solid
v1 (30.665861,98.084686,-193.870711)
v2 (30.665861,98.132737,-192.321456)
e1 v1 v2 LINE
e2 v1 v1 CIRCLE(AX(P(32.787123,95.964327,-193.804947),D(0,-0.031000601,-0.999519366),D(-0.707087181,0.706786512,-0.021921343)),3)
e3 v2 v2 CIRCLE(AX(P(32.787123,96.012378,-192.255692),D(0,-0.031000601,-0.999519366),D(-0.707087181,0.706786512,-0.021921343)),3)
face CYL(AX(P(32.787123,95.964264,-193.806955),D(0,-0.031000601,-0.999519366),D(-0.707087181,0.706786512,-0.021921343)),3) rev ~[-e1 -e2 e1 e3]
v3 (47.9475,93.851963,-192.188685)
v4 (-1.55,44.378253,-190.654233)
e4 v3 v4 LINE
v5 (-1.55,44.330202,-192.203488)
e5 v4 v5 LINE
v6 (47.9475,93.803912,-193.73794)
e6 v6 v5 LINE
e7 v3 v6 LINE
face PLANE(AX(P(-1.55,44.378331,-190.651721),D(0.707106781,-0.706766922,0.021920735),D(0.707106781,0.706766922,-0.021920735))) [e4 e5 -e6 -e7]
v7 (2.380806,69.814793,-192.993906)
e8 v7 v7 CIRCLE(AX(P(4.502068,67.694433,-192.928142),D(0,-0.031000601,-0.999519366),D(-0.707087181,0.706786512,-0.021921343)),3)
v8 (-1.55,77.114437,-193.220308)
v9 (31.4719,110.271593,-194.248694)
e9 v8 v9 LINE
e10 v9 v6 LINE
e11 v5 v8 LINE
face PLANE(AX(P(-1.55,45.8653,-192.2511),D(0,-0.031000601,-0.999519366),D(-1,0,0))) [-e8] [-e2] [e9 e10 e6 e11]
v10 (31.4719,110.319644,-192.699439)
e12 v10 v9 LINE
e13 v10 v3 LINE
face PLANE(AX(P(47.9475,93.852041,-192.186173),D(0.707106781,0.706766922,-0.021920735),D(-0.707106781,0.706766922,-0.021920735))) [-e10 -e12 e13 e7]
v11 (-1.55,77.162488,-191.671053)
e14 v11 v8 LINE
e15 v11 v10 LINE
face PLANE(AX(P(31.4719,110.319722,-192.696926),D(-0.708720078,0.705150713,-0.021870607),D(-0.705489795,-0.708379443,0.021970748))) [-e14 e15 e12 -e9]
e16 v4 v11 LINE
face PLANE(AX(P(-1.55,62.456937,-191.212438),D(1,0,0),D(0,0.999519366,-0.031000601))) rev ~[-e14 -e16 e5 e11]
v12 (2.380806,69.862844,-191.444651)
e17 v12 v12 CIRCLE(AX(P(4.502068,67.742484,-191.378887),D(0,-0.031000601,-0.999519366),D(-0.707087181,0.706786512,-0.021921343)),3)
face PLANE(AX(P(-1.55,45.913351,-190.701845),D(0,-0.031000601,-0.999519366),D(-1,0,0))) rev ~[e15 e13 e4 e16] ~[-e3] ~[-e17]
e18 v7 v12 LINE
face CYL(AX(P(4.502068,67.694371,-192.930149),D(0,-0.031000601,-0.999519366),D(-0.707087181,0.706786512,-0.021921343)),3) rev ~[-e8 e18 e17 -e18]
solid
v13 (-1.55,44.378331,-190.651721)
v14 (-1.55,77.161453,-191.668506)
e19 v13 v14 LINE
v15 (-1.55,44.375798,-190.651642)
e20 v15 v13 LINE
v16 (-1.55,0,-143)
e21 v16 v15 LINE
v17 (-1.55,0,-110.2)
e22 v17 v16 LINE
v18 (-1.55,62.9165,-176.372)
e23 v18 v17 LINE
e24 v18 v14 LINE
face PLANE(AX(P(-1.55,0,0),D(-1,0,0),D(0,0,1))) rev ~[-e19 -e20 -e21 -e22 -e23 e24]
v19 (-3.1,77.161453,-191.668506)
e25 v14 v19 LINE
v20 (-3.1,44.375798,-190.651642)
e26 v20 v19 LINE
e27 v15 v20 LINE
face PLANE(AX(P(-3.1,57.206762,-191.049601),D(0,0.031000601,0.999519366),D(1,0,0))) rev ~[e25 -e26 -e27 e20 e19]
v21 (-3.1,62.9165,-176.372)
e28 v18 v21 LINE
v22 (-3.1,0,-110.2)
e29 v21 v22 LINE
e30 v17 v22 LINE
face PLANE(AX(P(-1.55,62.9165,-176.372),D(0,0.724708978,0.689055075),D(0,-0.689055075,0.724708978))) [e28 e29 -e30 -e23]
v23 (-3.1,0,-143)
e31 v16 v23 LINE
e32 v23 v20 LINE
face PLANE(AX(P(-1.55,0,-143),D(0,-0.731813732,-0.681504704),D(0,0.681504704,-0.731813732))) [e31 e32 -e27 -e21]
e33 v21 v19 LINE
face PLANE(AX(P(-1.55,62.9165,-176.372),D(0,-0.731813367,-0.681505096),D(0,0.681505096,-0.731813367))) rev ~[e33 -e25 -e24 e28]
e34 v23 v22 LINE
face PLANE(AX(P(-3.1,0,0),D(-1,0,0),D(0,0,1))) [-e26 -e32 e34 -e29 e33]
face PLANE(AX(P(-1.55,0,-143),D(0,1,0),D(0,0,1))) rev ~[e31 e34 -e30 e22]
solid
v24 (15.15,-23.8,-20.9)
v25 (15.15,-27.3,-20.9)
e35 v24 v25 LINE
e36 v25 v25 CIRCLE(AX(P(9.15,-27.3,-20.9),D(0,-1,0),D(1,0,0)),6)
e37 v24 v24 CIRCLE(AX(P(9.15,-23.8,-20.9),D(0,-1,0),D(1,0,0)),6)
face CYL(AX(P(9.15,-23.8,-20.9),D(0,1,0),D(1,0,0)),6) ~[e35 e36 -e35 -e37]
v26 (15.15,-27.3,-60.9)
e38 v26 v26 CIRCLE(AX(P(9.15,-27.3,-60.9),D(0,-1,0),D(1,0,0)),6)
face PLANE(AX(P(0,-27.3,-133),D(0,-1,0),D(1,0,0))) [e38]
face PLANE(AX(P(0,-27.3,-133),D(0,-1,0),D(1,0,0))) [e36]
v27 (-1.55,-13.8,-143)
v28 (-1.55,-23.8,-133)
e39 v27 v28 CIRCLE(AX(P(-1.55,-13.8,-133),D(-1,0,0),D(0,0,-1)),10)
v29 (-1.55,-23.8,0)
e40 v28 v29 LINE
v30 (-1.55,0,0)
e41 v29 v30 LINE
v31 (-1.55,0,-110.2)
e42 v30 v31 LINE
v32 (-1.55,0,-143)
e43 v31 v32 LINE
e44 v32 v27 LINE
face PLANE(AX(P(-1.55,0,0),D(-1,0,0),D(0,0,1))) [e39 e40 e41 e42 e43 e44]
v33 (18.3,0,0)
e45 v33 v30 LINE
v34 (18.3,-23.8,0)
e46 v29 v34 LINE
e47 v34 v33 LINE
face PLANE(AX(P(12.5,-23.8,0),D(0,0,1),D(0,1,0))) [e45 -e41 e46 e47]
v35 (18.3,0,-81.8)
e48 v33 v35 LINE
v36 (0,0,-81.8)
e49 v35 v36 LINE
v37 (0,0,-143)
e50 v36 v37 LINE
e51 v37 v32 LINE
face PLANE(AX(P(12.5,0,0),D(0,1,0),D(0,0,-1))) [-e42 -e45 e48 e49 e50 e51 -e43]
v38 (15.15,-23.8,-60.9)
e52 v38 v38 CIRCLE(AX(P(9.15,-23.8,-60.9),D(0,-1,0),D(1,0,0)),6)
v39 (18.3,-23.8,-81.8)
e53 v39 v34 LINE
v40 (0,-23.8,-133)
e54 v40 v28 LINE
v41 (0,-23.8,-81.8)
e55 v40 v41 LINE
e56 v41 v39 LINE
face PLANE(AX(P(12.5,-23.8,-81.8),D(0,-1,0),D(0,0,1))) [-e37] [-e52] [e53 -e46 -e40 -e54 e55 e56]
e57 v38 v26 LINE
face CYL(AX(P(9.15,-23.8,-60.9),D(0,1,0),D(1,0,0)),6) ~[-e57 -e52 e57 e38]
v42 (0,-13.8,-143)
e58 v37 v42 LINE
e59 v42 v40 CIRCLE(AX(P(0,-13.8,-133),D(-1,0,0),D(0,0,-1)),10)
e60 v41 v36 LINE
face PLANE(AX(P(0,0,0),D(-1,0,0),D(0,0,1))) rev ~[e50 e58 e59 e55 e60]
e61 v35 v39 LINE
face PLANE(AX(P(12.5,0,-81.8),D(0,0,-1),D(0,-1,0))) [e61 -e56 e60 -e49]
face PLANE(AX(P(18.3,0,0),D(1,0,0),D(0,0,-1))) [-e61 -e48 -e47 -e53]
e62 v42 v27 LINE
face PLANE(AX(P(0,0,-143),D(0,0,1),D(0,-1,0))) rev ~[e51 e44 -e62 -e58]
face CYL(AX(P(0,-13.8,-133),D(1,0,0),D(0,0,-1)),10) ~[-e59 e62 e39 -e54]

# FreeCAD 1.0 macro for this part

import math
import FreeCAD as App
import Part
import Sketcher
from FreeCAD import Vector
Q = App.Units.Quantity


def add_polygon(sketch, points):
    """Adds a closed chain of lines whose ends are joined by coincident constraints."""
    first, n = sketch.GeometryCount, len(points)
    for a, b in zip(points, points[1:] + points[:1]):
        sketch.addGeometry(Part.LineSegment(App.Vector(*a, 0), App.Vector(*b, 0)), False)
    for i in range(n):
        sketch.addConstraint(Sketcher.Constraint("Coincident", first + i, 2, first + (i + 1) % n, 1))

doc = App.newDocument("Part")
params = doc.addObject("Spreadsheet::Sheet", "Params")
for row, (alias, value) in enumerate([
    ("sketch1_width", "23.8 mm"),
    ("sketch1_height", "81.8 mm"),
    ("pad1_length", "12.5 mm"),
    ("sketch2_radius", "10 mm"),
    ("sketch2_height", "143 mm"),
    ("sketch2_width", "23.8 mm"),
    ("pad2_length", "1.55 mm"),
    ("sketch3_height", "32.8 mm"),
    ("sketch3_length", "32.8 mm"),
    ("sketch3_length2", "67.3 mm"),
    ("pad3_length", "1.55 mm"),
    ("pad4_length", "1.55 mm"),
    ("sketch5_length", "70 mm"),
    ("sketch5_length2", "23.3 mm"),
    ("sketch5_height", "32.8 mm"),
    ("pocket1_length", "1.55 mm"),
    ("sketch6_diameter", "6 mm"),
    ("pocket2_length", "1.55 mm"),
    ("sketch7_width", "23.8 mm"),
    ("sketch7_height", "81.8 mm"),
    ("pad5_length", "5.8 mm"),
    ("sketch8_diameter", "12 mm"),
    ("pad6_length", "3.5 mm"),
], start=1):
    params.set(f"A{row}", alias)
    params.set(f"B{row}", "=" + value)
    params.setAlias(f"B{row}", alias)

body = doc.addObject("PartDesign::Body", "Body")
body.AllowCompound = True

sketch1 = body.newObject("Sketcher::SketchObject", "Sketch")
sketch1.AttachmentSupport = (doc.getObject("YZ_Plane"), [""])
sketch1.MapMode = "FlatFace"
add_polygon(sketch1, [(0, -81.8), (0, 0), (-23.8, 0), (-23.8, -81.8)])
sketch1.addConstraint([
    Sketcher.Constraint("Vertical", 0),
    Sketcher.Constraint("Horizontal", 1),
    Sketcher.Constraint("Vertical", 2),
    Sketcher.Constraint("Horizontal", 3),
    Sketcher.Constraint("Coincident", 0, 2, -1, 1),
    Sketcher.Constraint("DistanceX", 1, 2, 1, 1, 23.8),
    Sketcher.Constraint("DistanceY", 0, 1, 0, 2, 81.8),
])
sketch1.setExpression("Constraints[9]", "Params.sketch1_width")
sketch1.setExpression("Constraints[10]", "Params.sketch1_height")
pad1 = body.newObject("PartDesign::Pad", "Pad")
pad1.Profile = sketch1
pad1.setExpression("Length", "Params.pad1_length")

sketch2 = body.newObject("Sketcher::SketchObject", "Sketch001")
sketch2.AttachmentSupport = (doc.getObject("YZ_Plane"), [""])
sketch2.MapMode = "FlatFace"
sketch2.addGeometry([
    Part.LineSegment(Vector(-23.8, 0, 0), Vector(0, 0, 0)),
    Part.LineSegment(Vector(0, 0, 0), Vector(0, -143, 0)),
    Part.LineSegment(Vector(0, -143, 0), Vector(-13.8, -143, 0)),
    Part.ArcOfCircle(Part.Circle(Vector(-13.8, -133, 0), Vector(0, 0, 1), 10), math.radians(180), math.radians(270)),
    Part.LineSegment(Vector(-23.8, -133, 0), Vector(-23.8, 0, 0)),
], False)
sketch2.addConstraint([
    Sketcher.Constraint("Coincident", 0, 2, 1, 1),
    Sketcher.Constraint("Coincident", 1, 2, 2, 1),
    Sketcher.Constraint("Tangent", 2, 2, 3, 2),
    Sketcher.Constraint("Tangent", 3, 1, 4, 1),
    Sketcher.Constraint("Coincident", 4, 2, 0, 1),
    Sketcher.Constraint("Horizontal", 0),
    Sketcher.Constraint("Vertical", 1),
    Sketcher.Constraint("Horizontal", 2),
    Sketcher.Constraint("Vertical", 4),
    Sketcher.Constraint("Coincident", 0, 2, -1, 1),
    Sketcher.Constraint("Radius", 3, 10.0),
    Sketcher.Constraint("DistanceY", 1, 2, 1, 1, 143.0),
    Sketcher.Constraint("DistanceX", 0, 1, 0, 2, 23.8),
])
sketch2.setExpression("Constraints[10]", "Params.sketch2_radius")
sketch2.setExpression("Constraints[11]", "Params.sketch2_height")
sketch2.setExpression("Constraints[12]", "Params.sketch2_width")
pad2 = body.newObject("PartDesign::Pad", "Pad001")
pad2.Profile = sketch2
pad2.setExpression("Length", "Params.pad2_length")
pad2.Reversed = True

sketch3 = body.newObject("Sketcher::SketchObject", "Sketch002")
sketch3.AttachmentSupport = (doc.getObject("YZ_Plane"), [""])
sketch3.MapMode = "FlatFace"
sketch3.AttachmentOffset = App.Placement(Vector(0, 0, -1.55), App.Rotation())
add_polygon(sketch3, [(45.8653, -192.2511), (0, -143), (0, -110.2), (62.9165, -176.372), (78.6495, -193.2664)])
sketch3.addConstraint([
    Sketcher.Constraint("Vertical", 1),
    Sketcher.Constraint("PointOnObject", 0, 2, -2),
    Sketcher.Constraint("Parallel", 0, 3),
    Sketcher.Constraint("DistanceY", 1, 1, 1, 2, 32.8),
    Sketcher.Constraint("Distance", 4, 32.8),
    Sketcher.Constraint("DistanceY", 0, 2, -1, 1, 143.0),
    Sketcher.Constraint("Distance", 0, 67.3),
    Sketcher.Constraint("DistanceY", 2, 2, -1, 1, 176.372),
    Sketcher.Constraint("DistanceY", 4, 2, -1, 1, 192.251),
    Sketcher.Constraint("DistanceX", 2, 2, 3, 2, 15.733),
])
sketch3.setExpression("Constraints[8]", "Params.sketch3_height")
sketch3.setExpression("Constraints[9]", "Params.sketch3_length")
sketch3.setExpression("Constraints[11]", "Params.sketch3_length2")
pad3 = body.newObject("PartDesign::Pad", "Pad002")
pad3.Profile = sketch3
pad3.setExpression("Length", "Params.pad3_length")
pad3.Reversed = True

sketch4 = body.newObject("Sketcher::SketchObject", "Sketch003")
sketch4.Placement = App.Placement(Vector(-1.55, 45.8653, -192.2511), App.Rotation(Vector(-1, 0, 0), Vector(0, 0.999519366, -0.031000601), Vector(0, -0.031000601, -0.999519366), "ZXY"))
sketch4.addGeometry(Part.Circle(Vector(1.55, 11.2988, 0), Vector(0, 0, 1), 152.2645), False)
sketch4.addConstraint([
    Sketcher.Constraint("Diameter", 0, 304.529),
    Sketcher.Constraint("DistanceX", -1, 1, 0, 3, 1.55),
    Sketcher.Constraint("DistanceY", -1, 1, 0, 3, 11.2988),
])
pad4 = body.newObject("PartDesign::Pad", "Pad003")
pad4.Profile = sketch4
pad4.setExpression("Length", "Params.pad4_length")
pad4.Reversed = True

sketch5 = body.newObject("Sketcher::SketchObject", "Sketch004")
sketch5.Placement = App.Placement(Vector(-3.1, 57.2067, -191.0516), App.Rotation(Vector(1, 0, 0), Vector(0, 0.999519366, -0.031000601), Vector(0, 0.031000601, 0.999519366), "ZXY"))
sketch5.addGeometry(Part.Circle(Vector(-14.9256, -12.8346, 0), Vector(0, 0, 1), 218.7609), False)
add_polygon(sketch5, [(51.0475, 36.6629), (1.55, -12.8346), (1.55, 19.9654), (34.5719, 53.1385)])
sketch5.addConstraint([
    Sketcher.Constraint("Vertical", 2),
    Sketcher.Constraint("Perpendicular", 1, 4),
    Sketcher.Constraint("Horizontal", 0, 3, 1, 2),
    Sketcher.Constraint("Angle", 4, Q("-45 deg")),
    Sketcher.Constraint("Distance", 1, 70.0),
    Sketcher.Constraint("Distance", 4, 23.3),
    Sketcher.Constraint("DistanceY", 2, 1, 2, 2, 32.8),
    Sketcher.Constraint("Diameter", 0, 437.5218),
    Sketcher.Constraint("DistanceX", -1, 1, 1, 2, 1.55),
    Sketcher.Constraint("DistanceY", -1, 1, 4, 2, 36.663),
    Sketcher.Constraint("DistanceX", 0, 3, 4, 2, 65.973),
])
sketch5.setExpression("Constraints[8]", "Params.sketch5_length")
sketch5.setExpression("Constraints[9]", "Params.sketch5_length2")
sketch5.setExpression("Constraints[10]", "Params.sketch5_height")
pocket1 = body.newObject("PartDesign::Pocket", "Pocket")
pocket1.Profile = sketch5
pocket1.setExpression("Length", "Params.pocket1_length")

sketch6 = body.newObject("Sketcher::SketchObject", "Sketch005")
sketch6.Placement = App.Placement(Vector(-1.55, 44.3303, -192.2035), App.Rotation(Vector(-0.707087181, 0.706786512, -0.021921343), Vector(0.707126381, 0.706747331, -0.021920128), Vector(0, -0.031000601, -0.999519366), "ZXY"))
sketch6.addGeometry([
    Part.Circle(Vector(12.25, 20.808, 0), Vector(0, 0, 1), 3),
    Part.Circle(Vector(12.25, 60.808, 0), Vector(0, 0, 1), 3),
], False)
sketch6.addConstraint([
    Sketcher.Constraint("Equal", 0, 1),
    Sketcher.Constraint("Vertical", 0, 3, 1, 3),
    Sketcher.Constraint("Diameter", 0, 6.0),
    Sketcher.Constraint("DistanceY", 0, 3, 1, 3, 40.0),
    Sketcher.Constraint("DistanceX", -1, 1, 0, 3, 12.25),
    Sketcher.Constraint("DistanceY", -1, 1, 0, 3, 20.808),
])
sketch6.setExpression("Constraints[2]", "Params.sketch6_diameter")
pocket2 = body.newObject("PartDesign::Pocket", "Pocket001")
pocket2.Profile = sketch6
pocket2.setExpression("Length", "Params.pocket2_length")

sketch7 = body.newObject("Sketcher::SketchObject", "Sketch006")
sketch7.AttachmentSupport = (doc.getObject("YZ_Plane"), [""])
sketch7.MapMode = "FlatFace"
sketch7.AttachmentOffset = App.Placement(Vector(0, 0, 12.5), App.Rotation())
add_polygon(sketch7, [(0, 0), (-23.8, 0), (-23.8, -81.8), (0, -81.8)])
sketch7.addConstraint([
    Sketcher.Constraint("Horizontal", 0),
    Sketcher.Constraint("Vertical", 1),
    Sketcher.Constraint("Horizontal", 2),
    Sketcher.Constraint("Vertical", 3),
    Sketcher.Constraint("Coincident", 3, 2, -1, 1),
    Sketcher.Constraint("DistanceX", 0, 2, 0, 1, 23.8),
    Sketcher.Constraint("DistanceY", 1, 2, 1, 1, 81.8),
])
sketch7.setExpression("Constraints[9]", "Params.sketch7_width")
sketch7.setExpression("Constraints[10]", "Params.sketch7_height")
pad5 = body.newObject("PartDesign::Pad", "Pad004")
pad5.Profile = sketch7
pad5.setExpression("Length", "Params.pad5_length")

sketch8 = body.newObject("Sketcher::SketchObject", "Sketch007")
sketch8.AttachmentSupport = (doc.getObject("XZ_Plane"), [""])
sketch8.MapMode = "FlatFace"
sketch8.AttachmentOffset = App.Placement(Vector(0, 0, 23.8), App.Rotation())
sketch8.addGeometry([
    Part.Circle(Vector(9.15, -60.9, 0), Vector(0, 0, 1), 6),
    Part.Circle(Vector(9.15, -20.9, 0), Vector(0, 0, 1), 6),
], False)
sketch8.addConstraint([
    Sketcher.Constraint("Equal", 0, 1),
    Sketcher.Constraint("Vertical", 0, 3, 1, 3),
    Sketcher.Constraint("Diameter", 0, 12.0),
    Sketcher.Constraint("DistanceY", 0, 3, 1, 3, 40.0),
    Sketcher.Constraint("DistanceY", 0, 3, -1, 1, 60.9),
    Sketcher.Constraint("DistanceX", -1, 1, 0, 3, 9.15),
])
sketch8.setExpression("Constraints[2]", "Params.sketch8_diameter")
pad6 = body.newObject("PartDesign::Pad", "Pad005")
pad6.Profile = sketch8
pad6.setExpression("Length", "Params.pad6_length")

doc.recompute()
